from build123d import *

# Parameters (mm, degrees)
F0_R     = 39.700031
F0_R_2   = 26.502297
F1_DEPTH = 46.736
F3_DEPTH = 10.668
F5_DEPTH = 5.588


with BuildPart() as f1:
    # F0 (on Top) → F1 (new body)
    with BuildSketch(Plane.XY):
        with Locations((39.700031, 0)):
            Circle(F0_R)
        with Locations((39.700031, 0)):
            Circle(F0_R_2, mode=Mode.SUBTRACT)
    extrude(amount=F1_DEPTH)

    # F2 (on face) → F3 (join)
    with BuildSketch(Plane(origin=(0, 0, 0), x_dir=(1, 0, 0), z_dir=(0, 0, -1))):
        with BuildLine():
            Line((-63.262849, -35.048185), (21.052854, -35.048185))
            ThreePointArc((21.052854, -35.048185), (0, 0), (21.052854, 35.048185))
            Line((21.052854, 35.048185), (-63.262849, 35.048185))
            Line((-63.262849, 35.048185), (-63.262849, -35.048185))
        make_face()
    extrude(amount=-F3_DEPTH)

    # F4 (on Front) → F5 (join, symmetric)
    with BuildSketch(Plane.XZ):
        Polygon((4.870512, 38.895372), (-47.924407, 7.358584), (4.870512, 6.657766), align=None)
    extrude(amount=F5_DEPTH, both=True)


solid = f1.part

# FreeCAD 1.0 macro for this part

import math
import FreeCAD as App
import Part
import Sketcher

doc = App.newDocument("Part")
params = doc.addObject("Spreadsheet::Sheet", "Params")
for row, (alias, value) in enumerate([
    ("pad1_length", "1.84 in"),
    ("pad2_length", "0.42 in"),
    ("pad3_length", "0.44 in"),
], start=1):
    params.set(f"A{row}", alias)
    params.set(f"B{row}", "=" + value)
    params.setAlias(f"B{row}", alias)

body = doc.addObject("PartDesign::Body", "Body")

sketch1 = doc.addObject("Sketcher::SketchObject", "Sketch")
body.addObject(sketch1)
sketch1.AttachmentSupport = (doc.XY_Plane, [""])
sketch1.MapMode = "FlatFace"
sketch1.addGeometry(Part.Circle(App.Vector(40, 0, 0), App.Vector(0, 0, 1), 40), False)
sketch1.addGeometry(Part.Circle(App.Vector(40, 0, 0), App.Vector(0, 0, 1), 27), False)
sketch1.addConstraint(Sketcher.Constraint("Coincident", 1, 3, 0, 3))
sketch1.addConstraint(Sketcher.Constraint("PointOnObject", 0, 3, -1))
sketch1.addConstraint(Sketcher.Constraint("Diameter", 0, 79.400062))
sketch1.addConstraint(Sketcher.Constraint("Diameter", 1, 53.004594))
sketch1.addConstraint(Sketcher.Constraint("DistanceX", -1, 1, 0, 3, 39.700031))
pad1 = doc.addObject("PartDesign::Pad", "Pad")
body.addObject(pad1)
pad1.Profile = sketch1
pad1.setExpression("Length", "Params.pad1_length")

sketch2 = doc.addObject("Sketcher::SketchObject", "Sketch001")
body.addObject(sketch2)
sketch2.AttachmentSupport = (doc.XY_Plane, [""])
sketch2.MapMode = "FlatFace"
sketch2.addGeometry(Part.LineSegment(App.Vector(-63, 35, 0), App.Vector(21, 35, 0)), False)
sketch2.addGeometry(Part.ArcOfCircle(Part.Circle(App.Vector(40, 0, 0), App.Vector(0, 0, 1), 40), math.radians(118), math.radians(242)), False)
sketch2.addGeometry(Part.LineSegment(App.Vector(21, -35, 0), App.Vector(-63, -35, 0)), False)
sketch2.addGeometry(Part.LineSegment(App.Vector(-63, -35, 0), App.Vector(-63, 35, 0)), False)
sketch2.addConstraint(Sketcher.Constraint("Coincident", 0, 2, 1, 1))
sketch2.addConstraint(Sketcher.Constraint("Coincident", 1, 2, 2, 1))
sketch2.addConstraint(Sketcher.Constraint("Coincident", 2, 2, 3, 1))
sketch2.addConstraint(Sketcher.Constraint("Coincident", 3, 2, 0, 1))
sketch2.addConstraint(Sketcher.Constraint("Horizontal", 0))
sketch2.addConstraint(Sketcher.Constraint("Horizontal", 2))
sketch2.addConstraint(Sketcher.Constraint("Vertical", 3))
sketch2.addConstraint(Sketcher.Constraint("Symmetric", 0, 2, 1, 2, -1))
sketch2.addConstraint(Sketcher.Constraint("Radius", 1, 39.700031))
sketch2.addConstraint(Sketcher.Constraint("DistanceY", 3, 1, 3, 2, 70.09637))
sketch2.addConstraint(Sketcher.Constraint("DistanceX", 0, 1, 0, 2, 84.315703))
sketch2.addConstraint(Sketcher.Constraint("DistanceX", -1, 1, 1, 3, 39.700031))
pad2 = doc.addObject("PartDesign::Pad", "Pad001")
body.addObject(pad2)
pad2.Profile = sketch2
pad2.setExpression("Length", "Params.pad2_length")

sketch3 = doc.addObject("Sketcher::SketchObject", "Sketch002")
body.addObject(sketch3)
sketch3.AttachmentSupport = (doc.XZ_Plane, [""])
sketch3.MapMode = "FlatFace"
sketch3.addGeometry(Part.LineSegment(App.Vector(5, 39, 0), App.Vector(-48, 7, 0)), False)
sketch3.addGeometry(Part.LineSegment(App.Vector(-48, 7, 0), App.Vector(5, 7, 0)), False)
sketch3.addGeometry(Part.LineSegment(App.Vector(5, 7, 0), App.Vector(5, 39, 0)), False)
sketch3.addConstraint(Sketcher.Constraint("Coincident", 0, 2, 1, 1))
sketch3.addConstraint(Sketcher.Constraint("Coincident", 1, 2, 2, 1))
sketch3.addConstraint(Sketcher.Constraint("Coincident", 2, 2, 0, 1))
sketch3.addConstraint(Sketcher.Constraint("Vertical", 2))
sketch3.addConstraint(Sketcher.Constraint("Distance", 0, 61.496931))
sketch3.addConstraint(Sketcher.Constraint("Distance", 1, 52.79957))
sketch3.addConstraint(Sketcher.Constraint("DistanceY", 2, 1, 2, 2, 32.237606))
sketch3.addConstraint(Sketcher.Constraint("DistanceX", -1, 1, 1, 2, 4.870512))
sketch3.addConstraint(Sketcher.Constraint("DistanceY", -1, 1, 0, 2, 7.358584))
pad3 = doc.addObject("PartDesign::Pad", "Pad002")
body.addObject(pad3)
pad3.Profile = sketch3
pad3.setExpression("Length", "Params.pad3_length")
pad3.Midplane = True

doc.recompute()
